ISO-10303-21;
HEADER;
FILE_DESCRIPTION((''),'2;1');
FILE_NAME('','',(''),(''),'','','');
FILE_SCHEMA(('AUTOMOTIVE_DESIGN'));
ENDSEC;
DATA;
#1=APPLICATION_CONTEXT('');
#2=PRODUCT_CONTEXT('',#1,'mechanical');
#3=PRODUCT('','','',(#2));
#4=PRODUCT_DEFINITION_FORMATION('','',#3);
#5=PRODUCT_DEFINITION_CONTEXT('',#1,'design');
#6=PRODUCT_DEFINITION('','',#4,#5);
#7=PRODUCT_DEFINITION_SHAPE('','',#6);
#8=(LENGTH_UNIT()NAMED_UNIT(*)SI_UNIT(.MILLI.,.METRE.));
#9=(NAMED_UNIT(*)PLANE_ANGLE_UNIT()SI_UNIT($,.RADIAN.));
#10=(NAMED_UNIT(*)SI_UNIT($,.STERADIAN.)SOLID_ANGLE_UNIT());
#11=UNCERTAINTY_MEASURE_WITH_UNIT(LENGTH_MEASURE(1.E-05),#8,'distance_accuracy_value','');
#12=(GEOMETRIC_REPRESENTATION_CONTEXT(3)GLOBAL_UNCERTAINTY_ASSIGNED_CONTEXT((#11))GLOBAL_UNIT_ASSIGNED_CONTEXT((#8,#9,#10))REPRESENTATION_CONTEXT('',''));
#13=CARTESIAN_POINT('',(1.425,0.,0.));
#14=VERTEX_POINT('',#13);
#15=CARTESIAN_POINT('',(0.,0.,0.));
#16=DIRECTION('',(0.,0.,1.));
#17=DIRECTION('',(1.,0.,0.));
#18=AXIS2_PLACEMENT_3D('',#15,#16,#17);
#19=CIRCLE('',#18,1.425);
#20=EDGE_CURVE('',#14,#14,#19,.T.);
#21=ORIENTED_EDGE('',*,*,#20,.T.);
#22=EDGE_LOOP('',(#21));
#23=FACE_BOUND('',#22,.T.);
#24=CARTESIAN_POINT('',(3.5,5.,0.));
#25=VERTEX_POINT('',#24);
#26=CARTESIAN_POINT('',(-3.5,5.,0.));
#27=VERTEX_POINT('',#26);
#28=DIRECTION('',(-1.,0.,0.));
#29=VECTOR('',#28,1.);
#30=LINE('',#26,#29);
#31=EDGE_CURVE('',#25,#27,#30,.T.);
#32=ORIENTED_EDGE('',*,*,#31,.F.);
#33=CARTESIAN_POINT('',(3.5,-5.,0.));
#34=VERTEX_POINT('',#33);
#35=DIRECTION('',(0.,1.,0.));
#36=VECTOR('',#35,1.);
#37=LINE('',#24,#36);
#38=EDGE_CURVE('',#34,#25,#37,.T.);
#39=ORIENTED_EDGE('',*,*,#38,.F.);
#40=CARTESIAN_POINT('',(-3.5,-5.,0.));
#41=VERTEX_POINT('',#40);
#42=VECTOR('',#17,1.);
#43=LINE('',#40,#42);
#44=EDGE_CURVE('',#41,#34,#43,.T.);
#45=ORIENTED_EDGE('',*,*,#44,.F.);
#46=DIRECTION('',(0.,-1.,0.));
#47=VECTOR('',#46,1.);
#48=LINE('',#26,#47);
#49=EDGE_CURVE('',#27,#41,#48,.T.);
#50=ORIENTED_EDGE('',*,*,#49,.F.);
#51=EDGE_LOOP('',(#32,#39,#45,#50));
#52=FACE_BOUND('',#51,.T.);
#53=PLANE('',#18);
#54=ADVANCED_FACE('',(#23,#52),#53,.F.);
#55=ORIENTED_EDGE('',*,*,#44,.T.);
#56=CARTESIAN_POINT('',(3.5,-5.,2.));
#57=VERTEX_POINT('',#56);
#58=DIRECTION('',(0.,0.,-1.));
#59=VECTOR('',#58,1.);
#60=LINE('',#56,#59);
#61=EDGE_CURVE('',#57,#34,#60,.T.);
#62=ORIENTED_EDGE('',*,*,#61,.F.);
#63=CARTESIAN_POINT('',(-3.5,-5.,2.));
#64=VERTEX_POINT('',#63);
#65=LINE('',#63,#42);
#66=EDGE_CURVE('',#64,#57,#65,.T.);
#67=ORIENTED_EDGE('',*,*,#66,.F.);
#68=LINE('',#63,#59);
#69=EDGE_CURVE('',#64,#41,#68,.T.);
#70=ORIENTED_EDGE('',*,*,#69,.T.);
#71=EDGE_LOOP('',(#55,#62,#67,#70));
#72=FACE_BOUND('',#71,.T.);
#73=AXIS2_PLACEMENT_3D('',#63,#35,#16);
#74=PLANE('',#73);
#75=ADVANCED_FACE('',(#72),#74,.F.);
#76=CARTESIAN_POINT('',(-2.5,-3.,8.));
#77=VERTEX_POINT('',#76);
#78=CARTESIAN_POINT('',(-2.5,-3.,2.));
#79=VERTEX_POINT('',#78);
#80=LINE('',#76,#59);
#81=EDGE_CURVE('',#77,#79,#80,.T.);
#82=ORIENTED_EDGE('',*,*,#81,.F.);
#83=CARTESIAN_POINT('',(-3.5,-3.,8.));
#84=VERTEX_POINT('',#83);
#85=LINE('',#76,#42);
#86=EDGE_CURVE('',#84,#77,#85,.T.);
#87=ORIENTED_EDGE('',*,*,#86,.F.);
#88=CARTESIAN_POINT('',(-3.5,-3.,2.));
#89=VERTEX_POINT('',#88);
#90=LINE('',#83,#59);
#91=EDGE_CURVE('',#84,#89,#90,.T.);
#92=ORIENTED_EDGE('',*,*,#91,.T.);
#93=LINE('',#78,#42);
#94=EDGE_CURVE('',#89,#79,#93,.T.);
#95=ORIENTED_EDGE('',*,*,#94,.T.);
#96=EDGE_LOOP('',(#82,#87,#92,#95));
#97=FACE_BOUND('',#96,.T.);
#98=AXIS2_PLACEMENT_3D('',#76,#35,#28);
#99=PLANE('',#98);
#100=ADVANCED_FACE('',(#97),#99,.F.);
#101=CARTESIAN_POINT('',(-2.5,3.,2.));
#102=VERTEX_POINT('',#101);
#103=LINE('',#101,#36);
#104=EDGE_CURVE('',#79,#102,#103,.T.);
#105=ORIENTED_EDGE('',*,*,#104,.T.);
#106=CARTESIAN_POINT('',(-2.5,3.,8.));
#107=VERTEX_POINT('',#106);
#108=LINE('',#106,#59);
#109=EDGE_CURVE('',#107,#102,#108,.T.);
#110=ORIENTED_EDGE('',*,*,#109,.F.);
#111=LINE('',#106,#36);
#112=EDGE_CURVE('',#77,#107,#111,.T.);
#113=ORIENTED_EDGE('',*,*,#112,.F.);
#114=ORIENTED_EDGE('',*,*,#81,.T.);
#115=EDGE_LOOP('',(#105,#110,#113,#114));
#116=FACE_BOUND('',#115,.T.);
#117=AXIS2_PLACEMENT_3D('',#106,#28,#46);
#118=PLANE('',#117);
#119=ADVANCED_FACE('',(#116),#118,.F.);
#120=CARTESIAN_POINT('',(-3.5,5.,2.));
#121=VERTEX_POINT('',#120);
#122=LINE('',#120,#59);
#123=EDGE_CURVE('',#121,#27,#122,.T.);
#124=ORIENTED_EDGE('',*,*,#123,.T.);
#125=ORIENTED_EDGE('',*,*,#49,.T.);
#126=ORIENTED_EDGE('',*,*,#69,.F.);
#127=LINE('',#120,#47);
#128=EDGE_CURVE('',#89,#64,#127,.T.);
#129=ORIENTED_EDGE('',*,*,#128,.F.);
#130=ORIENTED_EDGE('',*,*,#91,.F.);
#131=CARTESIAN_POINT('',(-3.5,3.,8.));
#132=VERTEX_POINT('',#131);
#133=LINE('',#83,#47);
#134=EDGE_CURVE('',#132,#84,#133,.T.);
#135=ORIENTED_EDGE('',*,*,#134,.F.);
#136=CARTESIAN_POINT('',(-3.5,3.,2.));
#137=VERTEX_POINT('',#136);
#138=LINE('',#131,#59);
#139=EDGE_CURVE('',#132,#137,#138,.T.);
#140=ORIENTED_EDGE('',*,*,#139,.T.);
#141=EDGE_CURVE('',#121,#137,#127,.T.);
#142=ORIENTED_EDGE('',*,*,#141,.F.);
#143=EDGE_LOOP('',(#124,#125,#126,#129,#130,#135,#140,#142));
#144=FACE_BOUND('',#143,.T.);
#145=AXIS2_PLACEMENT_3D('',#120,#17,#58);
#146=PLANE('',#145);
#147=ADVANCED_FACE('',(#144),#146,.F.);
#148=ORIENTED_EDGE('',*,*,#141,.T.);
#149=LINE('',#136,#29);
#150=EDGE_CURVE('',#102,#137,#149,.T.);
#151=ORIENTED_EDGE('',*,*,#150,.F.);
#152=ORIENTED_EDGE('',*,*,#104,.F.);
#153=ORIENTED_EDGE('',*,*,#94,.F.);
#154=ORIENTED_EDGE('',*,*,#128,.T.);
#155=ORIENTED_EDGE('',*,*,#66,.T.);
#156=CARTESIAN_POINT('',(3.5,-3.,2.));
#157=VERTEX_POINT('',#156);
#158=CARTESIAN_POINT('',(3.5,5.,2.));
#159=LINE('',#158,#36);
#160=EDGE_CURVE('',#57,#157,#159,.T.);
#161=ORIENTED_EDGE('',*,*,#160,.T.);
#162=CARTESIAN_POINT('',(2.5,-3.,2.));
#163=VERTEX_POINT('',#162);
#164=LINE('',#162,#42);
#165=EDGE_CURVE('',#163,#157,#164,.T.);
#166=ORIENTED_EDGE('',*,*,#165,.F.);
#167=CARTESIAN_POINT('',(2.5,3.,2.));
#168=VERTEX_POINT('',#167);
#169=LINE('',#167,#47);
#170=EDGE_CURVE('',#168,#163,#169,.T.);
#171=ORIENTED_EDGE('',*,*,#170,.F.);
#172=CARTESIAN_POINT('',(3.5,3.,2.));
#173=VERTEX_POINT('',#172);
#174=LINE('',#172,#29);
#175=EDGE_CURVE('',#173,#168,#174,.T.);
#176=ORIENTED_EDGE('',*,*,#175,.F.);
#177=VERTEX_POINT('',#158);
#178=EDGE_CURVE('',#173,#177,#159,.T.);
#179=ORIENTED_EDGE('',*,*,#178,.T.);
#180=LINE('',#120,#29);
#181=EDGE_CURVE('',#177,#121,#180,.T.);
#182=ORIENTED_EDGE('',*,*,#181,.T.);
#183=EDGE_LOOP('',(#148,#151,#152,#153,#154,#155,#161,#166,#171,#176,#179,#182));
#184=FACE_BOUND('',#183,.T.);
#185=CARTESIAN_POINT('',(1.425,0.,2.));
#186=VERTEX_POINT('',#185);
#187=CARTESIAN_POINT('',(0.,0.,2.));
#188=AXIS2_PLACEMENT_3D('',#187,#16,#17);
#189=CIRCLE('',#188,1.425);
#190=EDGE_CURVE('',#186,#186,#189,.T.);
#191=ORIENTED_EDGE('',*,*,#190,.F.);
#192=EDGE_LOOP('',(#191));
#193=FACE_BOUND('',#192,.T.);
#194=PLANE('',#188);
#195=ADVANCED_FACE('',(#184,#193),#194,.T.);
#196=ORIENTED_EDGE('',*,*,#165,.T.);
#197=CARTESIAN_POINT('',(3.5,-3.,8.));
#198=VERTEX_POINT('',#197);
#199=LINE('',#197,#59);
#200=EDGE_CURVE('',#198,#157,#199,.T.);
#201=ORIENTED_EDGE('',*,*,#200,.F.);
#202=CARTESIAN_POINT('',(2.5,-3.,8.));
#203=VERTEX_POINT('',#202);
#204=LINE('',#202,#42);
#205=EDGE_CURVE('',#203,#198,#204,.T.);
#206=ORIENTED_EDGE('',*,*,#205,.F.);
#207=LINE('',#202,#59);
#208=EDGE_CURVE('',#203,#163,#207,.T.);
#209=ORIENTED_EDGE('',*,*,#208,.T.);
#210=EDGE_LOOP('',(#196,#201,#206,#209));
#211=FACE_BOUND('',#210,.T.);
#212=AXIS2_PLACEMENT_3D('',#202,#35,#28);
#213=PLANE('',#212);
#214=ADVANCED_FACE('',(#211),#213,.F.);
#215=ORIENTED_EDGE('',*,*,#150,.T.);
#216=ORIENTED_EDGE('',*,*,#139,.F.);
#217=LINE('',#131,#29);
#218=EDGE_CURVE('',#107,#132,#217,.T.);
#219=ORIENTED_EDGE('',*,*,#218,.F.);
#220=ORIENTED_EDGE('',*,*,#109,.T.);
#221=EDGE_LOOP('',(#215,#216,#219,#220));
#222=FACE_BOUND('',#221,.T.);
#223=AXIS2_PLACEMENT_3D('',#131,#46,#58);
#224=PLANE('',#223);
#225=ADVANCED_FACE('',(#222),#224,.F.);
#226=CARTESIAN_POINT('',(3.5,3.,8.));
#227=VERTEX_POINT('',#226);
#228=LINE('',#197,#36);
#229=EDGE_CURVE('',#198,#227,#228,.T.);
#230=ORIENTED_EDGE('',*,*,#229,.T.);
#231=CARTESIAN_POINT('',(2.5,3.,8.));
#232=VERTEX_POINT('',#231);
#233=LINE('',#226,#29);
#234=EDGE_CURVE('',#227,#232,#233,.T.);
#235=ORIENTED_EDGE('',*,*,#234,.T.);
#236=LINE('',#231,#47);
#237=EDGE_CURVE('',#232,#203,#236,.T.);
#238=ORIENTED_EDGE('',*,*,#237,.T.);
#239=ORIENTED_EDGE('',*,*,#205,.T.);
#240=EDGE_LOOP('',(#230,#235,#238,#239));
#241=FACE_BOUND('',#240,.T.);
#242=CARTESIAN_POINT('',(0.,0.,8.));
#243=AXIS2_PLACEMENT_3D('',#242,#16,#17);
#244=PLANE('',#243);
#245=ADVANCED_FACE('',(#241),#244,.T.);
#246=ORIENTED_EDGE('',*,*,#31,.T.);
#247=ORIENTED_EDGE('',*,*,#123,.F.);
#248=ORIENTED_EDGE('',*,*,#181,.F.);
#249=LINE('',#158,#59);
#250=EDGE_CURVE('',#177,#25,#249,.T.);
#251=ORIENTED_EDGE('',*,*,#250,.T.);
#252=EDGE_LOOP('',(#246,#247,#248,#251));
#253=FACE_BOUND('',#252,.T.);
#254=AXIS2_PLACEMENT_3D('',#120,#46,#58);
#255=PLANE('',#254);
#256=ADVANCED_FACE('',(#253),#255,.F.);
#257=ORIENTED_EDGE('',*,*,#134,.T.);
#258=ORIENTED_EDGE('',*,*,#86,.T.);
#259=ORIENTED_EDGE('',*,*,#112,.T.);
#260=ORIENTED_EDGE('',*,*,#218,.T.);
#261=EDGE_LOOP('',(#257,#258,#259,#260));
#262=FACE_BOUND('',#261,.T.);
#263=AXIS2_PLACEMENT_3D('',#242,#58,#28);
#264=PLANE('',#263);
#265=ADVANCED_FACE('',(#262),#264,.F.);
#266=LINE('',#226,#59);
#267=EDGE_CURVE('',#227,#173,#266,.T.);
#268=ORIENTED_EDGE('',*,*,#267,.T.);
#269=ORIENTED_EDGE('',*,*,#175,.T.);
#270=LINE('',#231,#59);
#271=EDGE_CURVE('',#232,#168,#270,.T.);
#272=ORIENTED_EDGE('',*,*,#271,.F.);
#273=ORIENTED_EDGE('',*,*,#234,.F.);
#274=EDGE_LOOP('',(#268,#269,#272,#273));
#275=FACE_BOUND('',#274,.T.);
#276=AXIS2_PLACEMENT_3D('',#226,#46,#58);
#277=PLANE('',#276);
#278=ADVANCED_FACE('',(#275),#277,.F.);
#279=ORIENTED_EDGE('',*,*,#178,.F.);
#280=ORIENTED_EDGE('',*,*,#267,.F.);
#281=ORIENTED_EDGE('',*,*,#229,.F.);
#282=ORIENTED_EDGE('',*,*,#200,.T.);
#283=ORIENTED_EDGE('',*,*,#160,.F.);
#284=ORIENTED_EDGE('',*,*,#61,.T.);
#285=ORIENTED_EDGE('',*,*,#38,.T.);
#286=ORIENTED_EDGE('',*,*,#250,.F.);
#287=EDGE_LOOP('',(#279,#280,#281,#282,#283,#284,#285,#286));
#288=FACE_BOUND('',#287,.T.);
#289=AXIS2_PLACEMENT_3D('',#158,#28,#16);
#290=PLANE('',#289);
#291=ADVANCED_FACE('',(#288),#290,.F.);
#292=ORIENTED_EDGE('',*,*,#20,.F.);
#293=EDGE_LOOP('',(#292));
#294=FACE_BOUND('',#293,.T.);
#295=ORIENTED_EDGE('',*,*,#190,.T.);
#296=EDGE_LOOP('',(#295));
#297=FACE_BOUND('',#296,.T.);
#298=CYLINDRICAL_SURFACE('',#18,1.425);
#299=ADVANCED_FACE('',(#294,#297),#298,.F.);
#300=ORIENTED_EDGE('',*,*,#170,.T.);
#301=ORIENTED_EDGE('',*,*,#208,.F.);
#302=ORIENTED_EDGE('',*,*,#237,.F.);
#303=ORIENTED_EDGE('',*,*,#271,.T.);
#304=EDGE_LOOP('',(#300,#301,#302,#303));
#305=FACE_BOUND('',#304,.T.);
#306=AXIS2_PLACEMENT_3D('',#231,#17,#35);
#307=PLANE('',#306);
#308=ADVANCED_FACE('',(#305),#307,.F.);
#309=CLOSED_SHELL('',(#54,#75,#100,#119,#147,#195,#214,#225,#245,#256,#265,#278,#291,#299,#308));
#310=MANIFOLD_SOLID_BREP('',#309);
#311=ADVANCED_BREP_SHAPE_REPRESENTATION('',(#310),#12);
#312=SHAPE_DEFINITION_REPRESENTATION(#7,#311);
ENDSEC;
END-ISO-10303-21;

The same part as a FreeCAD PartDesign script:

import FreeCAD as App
import Part
import Sketcher

V = App.Vector
Q = App.Units.Quantity


def add_polygon(sketch, points):
    """Adds a closed chain of lines whose ends are joined by coincident constraints."""
    first, n = sketch.GeometryCount, len(points)
    for a, b in zip(points, points[1:] + points[:1]):
        sketch.addGeometry(Part.LineSegment(App.Vector(*a, 0), App.Vector(*b, 0)), False)
    for i in range(n):
        sketch.addConstraint(Sketcher.Constraint("Coincident", first + i, 2, first + (i + 1) % n, 1))

doc = App.newDocument("Part")
body = doc.addObject("PartDesign::Body", "Body")

# Sketch on XY plane
sketch1 = body.newObject("Sketcher::SketchObject", "Sketch")
sketch1.AttachmentSupport = (doc.getObject("XY_Plane"), [""])
sketch1.MapMode = "FlatFace"
add_polygon(sketch1, [(-3.5, 5), (-3.5, -5), (3.5, -5), (3.5, 5)])  # lines 0-3
sketch1.addConstraint([
    Sketcher.Constraint("Vertical", 0),
    Sketcher.Constraint("Horizontal", 1),
    Sketcher.Constraint("Vertical", 2),
    Sketcher.Constraint("Horizontal", 3),
    Sketcher.Constraint("Symmetric", 0, 2, 2, 2, -1, 1),
    Sketcher.Constraint("DistanceX", 1, 1, 1, 2, Q("7 mm")),
    Sketcher.Constraint("DistanceY", 0, 2, 0, 1, Q("10 mm")),
])
pad1 = body.newObject("PartDesign::Pad", "Pad")
pad1.Profile = sketch1
pad1.Length = 2

# Sketch on XY plane
sketch2 = body.newObject("Sketcher::SketchObject", "Sketch001")
sketch2.AttachmentSupport = (doc.getObject("XY_Plane"), [""])
sketch2.MapMode = "FlatFace"
sketch2.AttachmentOffset = App.Placement(V(0, 0, 2), App.Rotation())
sketch2.addGeometry(Part.Circle(V(0, 0, 0), V(0, 0, 1), 1.425), False)
sketch2.addConstraint([
    Sketcher.Constraint("Coincident", 0, 3, -1, 1),
    Sketcher.Constraint("Diameter", 0, Q("2.85 mm")),
])
pocket1 = body.newObject("PartDesign::Pocket", "Pocket")
pocket1.Profile = sketch2
pocket1.Length = 2

# Sketch on XY plane
sketch3 = body.newObject("Sketcher::SketchObject", "Sketch002")
sketch3.AttachmentSupport = (doc.getObject("XY_Plane"), [""])
sketch3.MapMode = "FlatFace"
sketch3.AttachmentOffset = App.Placement(V(0, 0, 2), App.Rotation())
add_polygon(sketch3, [(-3.5, 3), (-3.5, -3), (-2.5, -3), (-2.5, 3)])  # lines 0-3
add_polygon(sketch3, [(2.5, 3), (2.5, -3), (3.5, -3), (3.5, 3)])  # lines 4-7
sketch3.addConstraint([
    Sketcher.Constraint("Vertical", 0),
    Sketcher.Constraint("Horizontal", 1),
    Sketcher.Constraint("Vertical", 2),
    Sketcher.Constraint("Horizontal", 3),
    Sketcher.Constraint("Vertical", 4),
    Sketcher.Constraint("Horizontal", 5),
    Sketcher.Constraint("Vertical", 6),
    Sketcher.Constraint("Horizontal", 7),
    Sketcher.Constraint("Symmetric", 2, 2, 4, 2, -1, 1),
    Sketcher.Constraint("Symmetric", 0, 2, 6, 2, -1, 1),
    Sketcher.Constraint("Horizontal", 1, 2, 4, 2),
    Sketcher.Constraint("DistanceX", 1, 1, 1, 2, Q("1 mm")),
    Sketcher.Constraint("DistanceY", 0, 2, 0, 1, Q("6 mm")),
    Sketcher.Constraint("DistanceX", 1, 2, 4, 2, Q("5 mm")),
])
pad2 = body.newObject("PartDesign::Pad", "Pad001")
pad2.Profile = sketch3
pad2.Length = 6

doc.recompute()
